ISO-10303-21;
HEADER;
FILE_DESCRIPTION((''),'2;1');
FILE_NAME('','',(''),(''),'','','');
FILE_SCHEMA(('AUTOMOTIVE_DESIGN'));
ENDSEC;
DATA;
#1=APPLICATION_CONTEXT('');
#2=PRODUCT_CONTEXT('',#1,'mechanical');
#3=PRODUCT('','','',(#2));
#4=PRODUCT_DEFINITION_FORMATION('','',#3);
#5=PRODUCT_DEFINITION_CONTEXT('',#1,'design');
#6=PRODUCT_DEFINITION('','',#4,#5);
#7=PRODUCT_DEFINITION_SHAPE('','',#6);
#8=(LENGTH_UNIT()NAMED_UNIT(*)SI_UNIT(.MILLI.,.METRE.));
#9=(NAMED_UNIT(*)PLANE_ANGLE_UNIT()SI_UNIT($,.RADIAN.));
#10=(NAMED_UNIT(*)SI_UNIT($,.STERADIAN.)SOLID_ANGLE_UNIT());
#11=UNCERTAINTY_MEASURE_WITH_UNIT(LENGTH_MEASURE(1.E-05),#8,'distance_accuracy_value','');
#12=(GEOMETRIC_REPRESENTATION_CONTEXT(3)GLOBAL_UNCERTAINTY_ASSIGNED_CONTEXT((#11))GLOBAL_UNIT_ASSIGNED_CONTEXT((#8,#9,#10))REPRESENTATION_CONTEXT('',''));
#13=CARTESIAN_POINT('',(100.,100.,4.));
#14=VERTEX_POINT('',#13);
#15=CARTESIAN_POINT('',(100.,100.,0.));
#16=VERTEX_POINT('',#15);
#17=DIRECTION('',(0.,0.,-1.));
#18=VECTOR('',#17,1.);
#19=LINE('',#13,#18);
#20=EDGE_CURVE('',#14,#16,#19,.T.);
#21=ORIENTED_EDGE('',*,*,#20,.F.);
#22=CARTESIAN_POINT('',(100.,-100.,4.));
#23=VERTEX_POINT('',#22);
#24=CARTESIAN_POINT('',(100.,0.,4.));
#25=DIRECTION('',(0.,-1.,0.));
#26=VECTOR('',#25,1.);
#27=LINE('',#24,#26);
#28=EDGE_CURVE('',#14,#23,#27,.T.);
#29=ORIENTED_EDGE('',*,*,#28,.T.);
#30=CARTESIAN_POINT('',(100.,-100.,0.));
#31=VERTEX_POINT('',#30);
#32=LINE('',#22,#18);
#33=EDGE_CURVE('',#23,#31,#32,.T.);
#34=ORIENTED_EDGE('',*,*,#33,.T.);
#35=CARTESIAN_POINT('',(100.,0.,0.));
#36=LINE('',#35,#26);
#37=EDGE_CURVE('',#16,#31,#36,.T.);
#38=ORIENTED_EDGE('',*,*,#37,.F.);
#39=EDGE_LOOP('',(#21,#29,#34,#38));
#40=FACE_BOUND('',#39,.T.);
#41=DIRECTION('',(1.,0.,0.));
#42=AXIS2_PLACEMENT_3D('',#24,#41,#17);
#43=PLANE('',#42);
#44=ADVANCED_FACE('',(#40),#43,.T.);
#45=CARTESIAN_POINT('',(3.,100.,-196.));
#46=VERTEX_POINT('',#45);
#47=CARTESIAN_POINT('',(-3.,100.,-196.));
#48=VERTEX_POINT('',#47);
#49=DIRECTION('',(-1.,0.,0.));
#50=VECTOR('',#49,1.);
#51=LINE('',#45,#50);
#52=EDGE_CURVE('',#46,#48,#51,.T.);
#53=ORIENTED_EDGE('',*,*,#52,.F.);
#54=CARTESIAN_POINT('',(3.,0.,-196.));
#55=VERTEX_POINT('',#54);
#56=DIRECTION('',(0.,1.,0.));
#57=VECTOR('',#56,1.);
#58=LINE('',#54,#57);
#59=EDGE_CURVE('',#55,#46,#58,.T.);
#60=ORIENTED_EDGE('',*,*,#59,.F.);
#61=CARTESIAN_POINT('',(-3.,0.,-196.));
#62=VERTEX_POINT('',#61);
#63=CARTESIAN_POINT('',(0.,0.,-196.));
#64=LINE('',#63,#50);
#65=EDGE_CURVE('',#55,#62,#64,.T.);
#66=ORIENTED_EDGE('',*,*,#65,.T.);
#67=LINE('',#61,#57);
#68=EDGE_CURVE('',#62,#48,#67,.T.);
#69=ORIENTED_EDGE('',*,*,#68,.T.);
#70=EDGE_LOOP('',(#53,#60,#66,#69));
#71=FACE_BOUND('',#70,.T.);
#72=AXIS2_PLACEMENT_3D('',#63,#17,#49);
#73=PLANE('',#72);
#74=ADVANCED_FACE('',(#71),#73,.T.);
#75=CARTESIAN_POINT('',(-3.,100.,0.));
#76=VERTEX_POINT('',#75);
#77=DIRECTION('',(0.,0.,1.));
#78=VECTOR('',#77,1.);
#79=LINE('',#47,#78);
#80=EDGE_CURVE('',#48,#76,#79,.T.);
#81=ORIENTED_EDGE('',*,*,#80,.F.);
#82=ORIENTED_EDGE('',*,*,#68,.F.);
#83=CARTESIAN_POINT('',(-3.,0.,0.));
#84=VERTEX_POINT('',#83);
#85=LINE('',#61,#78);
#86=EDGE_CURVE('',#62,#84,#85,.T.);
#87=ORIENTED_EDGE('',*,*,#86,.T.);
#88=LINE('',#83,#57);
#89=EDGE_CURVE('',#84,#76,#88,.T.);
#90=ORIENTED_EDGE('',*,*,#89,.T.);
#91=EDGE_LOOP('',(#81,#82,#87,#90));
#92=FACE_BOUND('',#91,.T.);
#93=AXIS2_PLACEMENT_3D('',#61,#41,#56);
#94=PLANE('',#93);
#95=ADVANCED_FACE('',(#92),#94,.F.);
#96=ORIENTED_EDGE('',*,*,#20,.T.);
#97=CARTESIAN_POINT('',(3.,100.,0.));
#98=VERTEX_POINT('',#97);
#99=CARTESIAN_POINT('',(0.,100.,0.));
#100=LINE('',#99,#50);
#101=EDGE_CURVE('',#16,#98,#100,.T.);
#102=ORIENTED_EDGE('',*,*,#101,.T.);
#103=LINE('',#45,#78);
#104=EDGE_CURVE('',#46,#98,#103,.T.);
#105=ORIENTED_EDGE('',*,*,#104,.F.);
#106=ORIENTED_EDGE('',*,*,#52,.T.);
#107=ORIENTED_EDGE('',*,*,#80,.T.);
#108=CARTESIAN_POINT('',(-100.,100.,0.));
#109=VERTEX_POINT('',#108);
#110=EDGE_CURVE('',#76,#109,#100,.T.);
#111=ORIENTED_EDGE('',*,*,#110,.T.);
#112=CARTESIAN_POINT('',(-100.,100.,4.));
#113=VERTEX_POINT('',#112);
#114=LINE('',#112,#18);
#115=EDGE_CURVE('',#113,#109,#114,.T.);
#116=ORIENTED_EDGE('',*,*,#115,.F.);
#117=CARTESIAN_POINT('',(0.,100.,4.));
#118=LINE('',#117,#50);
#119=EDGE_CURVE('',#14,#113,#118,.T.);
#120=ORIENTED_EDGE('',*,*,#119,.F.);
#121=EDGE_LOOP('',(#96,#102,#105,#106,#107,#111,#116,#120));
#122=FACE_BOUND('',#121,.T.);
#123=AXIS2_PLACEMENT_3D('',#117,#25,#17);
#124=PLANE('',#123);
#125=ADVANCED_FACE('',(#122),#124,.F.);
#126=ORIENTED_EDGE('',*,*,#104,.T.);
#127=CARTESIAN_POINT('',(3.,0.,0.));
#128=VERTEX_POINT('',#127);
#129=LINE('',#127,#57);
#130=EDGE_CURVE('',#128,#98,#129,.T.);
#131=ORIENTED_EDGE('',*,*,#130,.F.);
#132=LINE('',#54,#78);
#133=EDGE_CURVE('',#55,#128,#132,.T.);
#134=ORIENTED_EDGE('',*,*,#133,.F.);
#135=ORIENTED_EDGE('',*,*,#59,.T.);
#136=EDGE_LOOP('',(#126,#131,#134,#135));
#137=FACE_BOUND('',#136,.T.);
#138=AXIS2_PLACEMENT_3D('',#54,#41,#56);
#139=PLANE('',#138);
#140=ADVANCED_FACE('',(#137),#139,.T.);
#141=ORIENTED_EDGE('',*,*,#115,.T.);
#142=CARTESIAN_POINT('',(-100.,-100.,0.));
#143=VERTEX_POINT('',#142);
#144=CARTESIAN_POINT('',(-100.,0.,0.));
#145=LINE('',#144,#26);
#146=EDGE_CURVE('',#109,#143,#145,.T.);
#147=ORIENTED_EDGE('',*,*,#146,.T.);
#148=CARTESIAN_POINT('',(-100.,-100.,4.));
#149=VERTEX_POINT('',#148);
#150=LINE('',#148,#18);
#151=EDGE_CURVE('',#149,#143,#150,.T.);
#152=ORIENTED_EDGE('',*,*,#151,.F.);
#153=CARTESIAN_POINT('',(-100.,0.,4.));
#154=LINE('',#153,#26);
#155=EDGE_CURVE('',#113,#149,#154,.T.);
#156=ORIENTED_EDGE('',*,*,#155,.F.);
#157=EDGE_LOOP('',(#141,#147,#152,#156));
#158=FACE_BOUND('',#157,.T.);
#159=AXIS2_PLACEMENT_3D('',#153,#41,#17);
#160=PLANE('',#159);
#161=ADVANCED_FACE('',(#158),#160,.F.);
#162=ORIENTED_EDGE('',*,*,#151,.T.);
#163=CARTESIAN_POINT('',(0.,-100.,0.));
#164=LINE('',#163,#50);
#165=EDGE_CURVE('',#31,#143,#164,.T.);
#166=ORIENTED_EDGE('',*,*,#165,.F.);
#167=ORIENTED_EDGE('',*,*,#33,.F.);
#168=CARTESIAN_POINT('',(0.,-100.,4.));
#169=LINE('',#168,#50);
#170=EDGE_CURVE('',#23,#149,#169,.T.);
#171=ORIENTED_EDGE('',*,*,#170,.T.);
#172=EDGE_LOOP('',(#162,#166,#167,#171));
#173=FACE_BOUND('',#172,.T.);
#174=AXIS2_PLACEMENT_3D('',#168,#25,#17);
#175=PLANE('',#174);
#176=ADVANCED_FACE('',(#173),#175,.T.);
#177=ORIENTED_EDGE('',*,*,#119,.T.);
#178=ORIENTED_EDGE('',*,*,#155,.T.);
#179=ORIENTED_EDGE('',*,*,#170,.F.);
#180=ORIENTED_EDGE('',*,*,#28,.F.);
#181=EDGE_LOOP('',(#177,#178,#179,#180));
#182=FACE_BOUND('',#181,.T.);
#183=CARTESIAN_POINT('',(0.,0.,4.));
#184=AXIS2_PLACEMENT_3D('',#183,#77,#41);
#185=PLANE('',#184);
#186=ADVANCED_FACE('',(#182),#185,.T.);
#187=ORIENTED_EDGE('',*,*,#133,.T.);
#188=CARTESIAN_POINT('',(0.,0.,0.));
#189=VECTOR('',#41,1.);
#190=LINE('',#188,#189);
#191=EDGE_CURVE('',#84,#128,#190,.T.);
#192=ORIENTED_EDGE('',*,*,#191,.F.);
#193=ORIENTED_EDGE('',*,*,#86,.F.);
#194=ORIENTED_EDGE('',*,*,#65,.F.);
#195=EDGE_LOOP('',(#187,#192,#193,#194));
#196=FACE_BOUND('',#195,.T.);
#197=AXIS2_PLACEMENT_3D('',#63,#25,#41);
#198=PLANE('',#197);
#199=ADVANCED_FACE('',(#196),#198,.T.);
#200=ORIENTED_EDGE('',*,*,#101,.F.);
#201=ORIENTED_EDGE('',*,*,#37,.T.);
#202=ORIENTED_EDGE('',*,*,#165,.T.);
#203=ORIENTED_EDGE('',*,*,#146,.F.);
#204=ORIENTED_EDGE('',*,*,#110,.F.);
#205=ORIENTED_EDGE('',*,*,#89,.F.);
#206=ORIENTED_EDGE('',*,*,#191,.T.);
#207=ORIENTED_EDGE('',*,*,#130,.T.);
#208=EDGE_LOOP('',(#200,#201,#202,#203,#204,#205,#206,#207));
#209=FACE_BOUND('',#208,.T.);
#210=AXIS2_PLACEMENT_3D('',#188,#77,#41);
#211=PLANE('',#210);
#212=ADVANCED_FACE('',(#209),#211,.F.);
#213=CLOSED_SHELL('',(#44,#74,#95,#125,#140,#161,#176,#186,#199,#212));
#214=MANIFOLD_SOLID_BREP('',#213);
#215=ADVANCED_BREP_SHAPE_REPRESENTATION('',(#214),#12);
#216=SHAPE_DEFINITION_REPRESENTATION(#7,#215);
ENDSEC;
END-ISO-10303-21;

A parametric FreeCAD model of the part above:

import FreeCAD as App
import Part
import Sketcher

V = App.Vector
Q = App.Units.Quantity

doc = App.newDocument("Part")
body = doc.addObject("PartDesign::Body", "Body")

# Sketch on XY plane
sketch1 = body.newObject("Sketcher::SketchObject", "Sketch")
sketch1.AttachmentSupport = (doc.getObject("XY_Plane"), [""])
sketch1.MapMode = "FlatFace"
sketch1.addGeometry(Part.LineSegment(V(-100, 100, 0), V(-100, -100, 0)), False)
sketch1.addGeometry(Part.LineSegment(V(-100, -100, 0), V(100, -100, 0)), False)
sketch1.addGeometry(Part.LineSegment(V(100, -100, 0), V(100, 100, 0)), False)
sketch1.addGeometry(Part.LineSegment(V(100, 100, 0), V(-100, 100, 0)), False)
sketch1.addConstraint(Sketcher.Constraint("Coincident", 0, 2, 1, 1))
sketch1.addConstraint(Sketcher.Constraint("Coincident", 1, 2, 2, 1))
sketch1.addConstraint(Sketcher.Constraint("Coincident", 2, 2, 3, 1))
sketch1.addConstraint(Sketcher.Constraint("Coincident", 3, 2, 0, 1))
sketch1.addConstraint(Sketcher.Constraint("Vertical", 0))
sketch1.addConstraint(Sketcher.Constraint("Horizontal", 1))
sketch1.addConstraint(Sketcher.Constraint("Vertical", 2))
sketch1.addConstraint(Sketcher.Constraint("Horizontal", 3))
sketch1.addConstraint(Sketcher.Constraint("Symmetric", 0, 2, 2, 2, -1, 1))
sketch1.addConstraint(Sketcher.Constraint("Equal", 3, 0))
sketch1.addConstraint(Sketcher.Constraint("DistanceX", 1, 1, 1, 2, Q("200 mm")))
pad1 = body.newObject("PartDesign::Pad", "Pad")
pad1.Profile = sketch1
pad1.Length = 4

# Sketch on XY plane
sketch2 = body.newObject("Sketcher::SketchObject", "Sketch001")
sketch2.AttachmentSupport = (doc.getObject("XY_Plane"), [""])
sketch2.MapMode = "FlatFace"
sketch2.addGeometry(Part.LineSegment(V(-3, 0, 0), V(-3, 100, 0)), False)
sketch2.addGeometry(Part.LineSegment(V(-3, 100, 0), V(3, 100, 0)), False)
sketch2.addGeometry(Part.LineSegment(V(3, 100, 0), V(3, 0, 0)), False)
sketch2.addGeometry(Part.LineSegment(V(3, 0, 0), V(-3, 0, 0)), False)
sketch2.addConstraint(Sketcher.Constraint("Coincident", 0, 2, 1, 1))
sketch2.addConstraint(Sketcher.Constraint("Coincident", 1, 2, 2, 1))
sketch2.addConstraint(Sketcher.Constraint("Coincident", 2, 2, 3, 1))
sketch2.addConstraint(Sketcher.Constraint("Coincident", 3, 2, 0, 1))
sketch2.addConstraint(Sketcher.Constraint("Vertical", 0))
sketch2.addConstraint(Sketcher.Constraint("Horizontal", 1))
sketch2.addConstraint(Sketcher.Constraint("Vertical", 2))
sketch2.addConstraint(Sketcher.Constraint("Horizontal", 3))
sketch2.addConstraint(Sketcher.Constraint("Symmetric", 2, 2, 3, 2, -1, 1))
sketch2.addConstraint(Sketcher.Constraint("DistanceX", 1, 1, 1, 2, Q("6 mm")))
sketch2.addConstraint(Sketcher.Constraint("DistanceY", 0, 1, 0, 2, Q("100 mm")))
pad2 = body.newObject("PartDesign::Pad", "Pad001")
pad2.Profile = sketch2
pad2.Length = 196
pad2.Reversed = True

doc.recompute()
